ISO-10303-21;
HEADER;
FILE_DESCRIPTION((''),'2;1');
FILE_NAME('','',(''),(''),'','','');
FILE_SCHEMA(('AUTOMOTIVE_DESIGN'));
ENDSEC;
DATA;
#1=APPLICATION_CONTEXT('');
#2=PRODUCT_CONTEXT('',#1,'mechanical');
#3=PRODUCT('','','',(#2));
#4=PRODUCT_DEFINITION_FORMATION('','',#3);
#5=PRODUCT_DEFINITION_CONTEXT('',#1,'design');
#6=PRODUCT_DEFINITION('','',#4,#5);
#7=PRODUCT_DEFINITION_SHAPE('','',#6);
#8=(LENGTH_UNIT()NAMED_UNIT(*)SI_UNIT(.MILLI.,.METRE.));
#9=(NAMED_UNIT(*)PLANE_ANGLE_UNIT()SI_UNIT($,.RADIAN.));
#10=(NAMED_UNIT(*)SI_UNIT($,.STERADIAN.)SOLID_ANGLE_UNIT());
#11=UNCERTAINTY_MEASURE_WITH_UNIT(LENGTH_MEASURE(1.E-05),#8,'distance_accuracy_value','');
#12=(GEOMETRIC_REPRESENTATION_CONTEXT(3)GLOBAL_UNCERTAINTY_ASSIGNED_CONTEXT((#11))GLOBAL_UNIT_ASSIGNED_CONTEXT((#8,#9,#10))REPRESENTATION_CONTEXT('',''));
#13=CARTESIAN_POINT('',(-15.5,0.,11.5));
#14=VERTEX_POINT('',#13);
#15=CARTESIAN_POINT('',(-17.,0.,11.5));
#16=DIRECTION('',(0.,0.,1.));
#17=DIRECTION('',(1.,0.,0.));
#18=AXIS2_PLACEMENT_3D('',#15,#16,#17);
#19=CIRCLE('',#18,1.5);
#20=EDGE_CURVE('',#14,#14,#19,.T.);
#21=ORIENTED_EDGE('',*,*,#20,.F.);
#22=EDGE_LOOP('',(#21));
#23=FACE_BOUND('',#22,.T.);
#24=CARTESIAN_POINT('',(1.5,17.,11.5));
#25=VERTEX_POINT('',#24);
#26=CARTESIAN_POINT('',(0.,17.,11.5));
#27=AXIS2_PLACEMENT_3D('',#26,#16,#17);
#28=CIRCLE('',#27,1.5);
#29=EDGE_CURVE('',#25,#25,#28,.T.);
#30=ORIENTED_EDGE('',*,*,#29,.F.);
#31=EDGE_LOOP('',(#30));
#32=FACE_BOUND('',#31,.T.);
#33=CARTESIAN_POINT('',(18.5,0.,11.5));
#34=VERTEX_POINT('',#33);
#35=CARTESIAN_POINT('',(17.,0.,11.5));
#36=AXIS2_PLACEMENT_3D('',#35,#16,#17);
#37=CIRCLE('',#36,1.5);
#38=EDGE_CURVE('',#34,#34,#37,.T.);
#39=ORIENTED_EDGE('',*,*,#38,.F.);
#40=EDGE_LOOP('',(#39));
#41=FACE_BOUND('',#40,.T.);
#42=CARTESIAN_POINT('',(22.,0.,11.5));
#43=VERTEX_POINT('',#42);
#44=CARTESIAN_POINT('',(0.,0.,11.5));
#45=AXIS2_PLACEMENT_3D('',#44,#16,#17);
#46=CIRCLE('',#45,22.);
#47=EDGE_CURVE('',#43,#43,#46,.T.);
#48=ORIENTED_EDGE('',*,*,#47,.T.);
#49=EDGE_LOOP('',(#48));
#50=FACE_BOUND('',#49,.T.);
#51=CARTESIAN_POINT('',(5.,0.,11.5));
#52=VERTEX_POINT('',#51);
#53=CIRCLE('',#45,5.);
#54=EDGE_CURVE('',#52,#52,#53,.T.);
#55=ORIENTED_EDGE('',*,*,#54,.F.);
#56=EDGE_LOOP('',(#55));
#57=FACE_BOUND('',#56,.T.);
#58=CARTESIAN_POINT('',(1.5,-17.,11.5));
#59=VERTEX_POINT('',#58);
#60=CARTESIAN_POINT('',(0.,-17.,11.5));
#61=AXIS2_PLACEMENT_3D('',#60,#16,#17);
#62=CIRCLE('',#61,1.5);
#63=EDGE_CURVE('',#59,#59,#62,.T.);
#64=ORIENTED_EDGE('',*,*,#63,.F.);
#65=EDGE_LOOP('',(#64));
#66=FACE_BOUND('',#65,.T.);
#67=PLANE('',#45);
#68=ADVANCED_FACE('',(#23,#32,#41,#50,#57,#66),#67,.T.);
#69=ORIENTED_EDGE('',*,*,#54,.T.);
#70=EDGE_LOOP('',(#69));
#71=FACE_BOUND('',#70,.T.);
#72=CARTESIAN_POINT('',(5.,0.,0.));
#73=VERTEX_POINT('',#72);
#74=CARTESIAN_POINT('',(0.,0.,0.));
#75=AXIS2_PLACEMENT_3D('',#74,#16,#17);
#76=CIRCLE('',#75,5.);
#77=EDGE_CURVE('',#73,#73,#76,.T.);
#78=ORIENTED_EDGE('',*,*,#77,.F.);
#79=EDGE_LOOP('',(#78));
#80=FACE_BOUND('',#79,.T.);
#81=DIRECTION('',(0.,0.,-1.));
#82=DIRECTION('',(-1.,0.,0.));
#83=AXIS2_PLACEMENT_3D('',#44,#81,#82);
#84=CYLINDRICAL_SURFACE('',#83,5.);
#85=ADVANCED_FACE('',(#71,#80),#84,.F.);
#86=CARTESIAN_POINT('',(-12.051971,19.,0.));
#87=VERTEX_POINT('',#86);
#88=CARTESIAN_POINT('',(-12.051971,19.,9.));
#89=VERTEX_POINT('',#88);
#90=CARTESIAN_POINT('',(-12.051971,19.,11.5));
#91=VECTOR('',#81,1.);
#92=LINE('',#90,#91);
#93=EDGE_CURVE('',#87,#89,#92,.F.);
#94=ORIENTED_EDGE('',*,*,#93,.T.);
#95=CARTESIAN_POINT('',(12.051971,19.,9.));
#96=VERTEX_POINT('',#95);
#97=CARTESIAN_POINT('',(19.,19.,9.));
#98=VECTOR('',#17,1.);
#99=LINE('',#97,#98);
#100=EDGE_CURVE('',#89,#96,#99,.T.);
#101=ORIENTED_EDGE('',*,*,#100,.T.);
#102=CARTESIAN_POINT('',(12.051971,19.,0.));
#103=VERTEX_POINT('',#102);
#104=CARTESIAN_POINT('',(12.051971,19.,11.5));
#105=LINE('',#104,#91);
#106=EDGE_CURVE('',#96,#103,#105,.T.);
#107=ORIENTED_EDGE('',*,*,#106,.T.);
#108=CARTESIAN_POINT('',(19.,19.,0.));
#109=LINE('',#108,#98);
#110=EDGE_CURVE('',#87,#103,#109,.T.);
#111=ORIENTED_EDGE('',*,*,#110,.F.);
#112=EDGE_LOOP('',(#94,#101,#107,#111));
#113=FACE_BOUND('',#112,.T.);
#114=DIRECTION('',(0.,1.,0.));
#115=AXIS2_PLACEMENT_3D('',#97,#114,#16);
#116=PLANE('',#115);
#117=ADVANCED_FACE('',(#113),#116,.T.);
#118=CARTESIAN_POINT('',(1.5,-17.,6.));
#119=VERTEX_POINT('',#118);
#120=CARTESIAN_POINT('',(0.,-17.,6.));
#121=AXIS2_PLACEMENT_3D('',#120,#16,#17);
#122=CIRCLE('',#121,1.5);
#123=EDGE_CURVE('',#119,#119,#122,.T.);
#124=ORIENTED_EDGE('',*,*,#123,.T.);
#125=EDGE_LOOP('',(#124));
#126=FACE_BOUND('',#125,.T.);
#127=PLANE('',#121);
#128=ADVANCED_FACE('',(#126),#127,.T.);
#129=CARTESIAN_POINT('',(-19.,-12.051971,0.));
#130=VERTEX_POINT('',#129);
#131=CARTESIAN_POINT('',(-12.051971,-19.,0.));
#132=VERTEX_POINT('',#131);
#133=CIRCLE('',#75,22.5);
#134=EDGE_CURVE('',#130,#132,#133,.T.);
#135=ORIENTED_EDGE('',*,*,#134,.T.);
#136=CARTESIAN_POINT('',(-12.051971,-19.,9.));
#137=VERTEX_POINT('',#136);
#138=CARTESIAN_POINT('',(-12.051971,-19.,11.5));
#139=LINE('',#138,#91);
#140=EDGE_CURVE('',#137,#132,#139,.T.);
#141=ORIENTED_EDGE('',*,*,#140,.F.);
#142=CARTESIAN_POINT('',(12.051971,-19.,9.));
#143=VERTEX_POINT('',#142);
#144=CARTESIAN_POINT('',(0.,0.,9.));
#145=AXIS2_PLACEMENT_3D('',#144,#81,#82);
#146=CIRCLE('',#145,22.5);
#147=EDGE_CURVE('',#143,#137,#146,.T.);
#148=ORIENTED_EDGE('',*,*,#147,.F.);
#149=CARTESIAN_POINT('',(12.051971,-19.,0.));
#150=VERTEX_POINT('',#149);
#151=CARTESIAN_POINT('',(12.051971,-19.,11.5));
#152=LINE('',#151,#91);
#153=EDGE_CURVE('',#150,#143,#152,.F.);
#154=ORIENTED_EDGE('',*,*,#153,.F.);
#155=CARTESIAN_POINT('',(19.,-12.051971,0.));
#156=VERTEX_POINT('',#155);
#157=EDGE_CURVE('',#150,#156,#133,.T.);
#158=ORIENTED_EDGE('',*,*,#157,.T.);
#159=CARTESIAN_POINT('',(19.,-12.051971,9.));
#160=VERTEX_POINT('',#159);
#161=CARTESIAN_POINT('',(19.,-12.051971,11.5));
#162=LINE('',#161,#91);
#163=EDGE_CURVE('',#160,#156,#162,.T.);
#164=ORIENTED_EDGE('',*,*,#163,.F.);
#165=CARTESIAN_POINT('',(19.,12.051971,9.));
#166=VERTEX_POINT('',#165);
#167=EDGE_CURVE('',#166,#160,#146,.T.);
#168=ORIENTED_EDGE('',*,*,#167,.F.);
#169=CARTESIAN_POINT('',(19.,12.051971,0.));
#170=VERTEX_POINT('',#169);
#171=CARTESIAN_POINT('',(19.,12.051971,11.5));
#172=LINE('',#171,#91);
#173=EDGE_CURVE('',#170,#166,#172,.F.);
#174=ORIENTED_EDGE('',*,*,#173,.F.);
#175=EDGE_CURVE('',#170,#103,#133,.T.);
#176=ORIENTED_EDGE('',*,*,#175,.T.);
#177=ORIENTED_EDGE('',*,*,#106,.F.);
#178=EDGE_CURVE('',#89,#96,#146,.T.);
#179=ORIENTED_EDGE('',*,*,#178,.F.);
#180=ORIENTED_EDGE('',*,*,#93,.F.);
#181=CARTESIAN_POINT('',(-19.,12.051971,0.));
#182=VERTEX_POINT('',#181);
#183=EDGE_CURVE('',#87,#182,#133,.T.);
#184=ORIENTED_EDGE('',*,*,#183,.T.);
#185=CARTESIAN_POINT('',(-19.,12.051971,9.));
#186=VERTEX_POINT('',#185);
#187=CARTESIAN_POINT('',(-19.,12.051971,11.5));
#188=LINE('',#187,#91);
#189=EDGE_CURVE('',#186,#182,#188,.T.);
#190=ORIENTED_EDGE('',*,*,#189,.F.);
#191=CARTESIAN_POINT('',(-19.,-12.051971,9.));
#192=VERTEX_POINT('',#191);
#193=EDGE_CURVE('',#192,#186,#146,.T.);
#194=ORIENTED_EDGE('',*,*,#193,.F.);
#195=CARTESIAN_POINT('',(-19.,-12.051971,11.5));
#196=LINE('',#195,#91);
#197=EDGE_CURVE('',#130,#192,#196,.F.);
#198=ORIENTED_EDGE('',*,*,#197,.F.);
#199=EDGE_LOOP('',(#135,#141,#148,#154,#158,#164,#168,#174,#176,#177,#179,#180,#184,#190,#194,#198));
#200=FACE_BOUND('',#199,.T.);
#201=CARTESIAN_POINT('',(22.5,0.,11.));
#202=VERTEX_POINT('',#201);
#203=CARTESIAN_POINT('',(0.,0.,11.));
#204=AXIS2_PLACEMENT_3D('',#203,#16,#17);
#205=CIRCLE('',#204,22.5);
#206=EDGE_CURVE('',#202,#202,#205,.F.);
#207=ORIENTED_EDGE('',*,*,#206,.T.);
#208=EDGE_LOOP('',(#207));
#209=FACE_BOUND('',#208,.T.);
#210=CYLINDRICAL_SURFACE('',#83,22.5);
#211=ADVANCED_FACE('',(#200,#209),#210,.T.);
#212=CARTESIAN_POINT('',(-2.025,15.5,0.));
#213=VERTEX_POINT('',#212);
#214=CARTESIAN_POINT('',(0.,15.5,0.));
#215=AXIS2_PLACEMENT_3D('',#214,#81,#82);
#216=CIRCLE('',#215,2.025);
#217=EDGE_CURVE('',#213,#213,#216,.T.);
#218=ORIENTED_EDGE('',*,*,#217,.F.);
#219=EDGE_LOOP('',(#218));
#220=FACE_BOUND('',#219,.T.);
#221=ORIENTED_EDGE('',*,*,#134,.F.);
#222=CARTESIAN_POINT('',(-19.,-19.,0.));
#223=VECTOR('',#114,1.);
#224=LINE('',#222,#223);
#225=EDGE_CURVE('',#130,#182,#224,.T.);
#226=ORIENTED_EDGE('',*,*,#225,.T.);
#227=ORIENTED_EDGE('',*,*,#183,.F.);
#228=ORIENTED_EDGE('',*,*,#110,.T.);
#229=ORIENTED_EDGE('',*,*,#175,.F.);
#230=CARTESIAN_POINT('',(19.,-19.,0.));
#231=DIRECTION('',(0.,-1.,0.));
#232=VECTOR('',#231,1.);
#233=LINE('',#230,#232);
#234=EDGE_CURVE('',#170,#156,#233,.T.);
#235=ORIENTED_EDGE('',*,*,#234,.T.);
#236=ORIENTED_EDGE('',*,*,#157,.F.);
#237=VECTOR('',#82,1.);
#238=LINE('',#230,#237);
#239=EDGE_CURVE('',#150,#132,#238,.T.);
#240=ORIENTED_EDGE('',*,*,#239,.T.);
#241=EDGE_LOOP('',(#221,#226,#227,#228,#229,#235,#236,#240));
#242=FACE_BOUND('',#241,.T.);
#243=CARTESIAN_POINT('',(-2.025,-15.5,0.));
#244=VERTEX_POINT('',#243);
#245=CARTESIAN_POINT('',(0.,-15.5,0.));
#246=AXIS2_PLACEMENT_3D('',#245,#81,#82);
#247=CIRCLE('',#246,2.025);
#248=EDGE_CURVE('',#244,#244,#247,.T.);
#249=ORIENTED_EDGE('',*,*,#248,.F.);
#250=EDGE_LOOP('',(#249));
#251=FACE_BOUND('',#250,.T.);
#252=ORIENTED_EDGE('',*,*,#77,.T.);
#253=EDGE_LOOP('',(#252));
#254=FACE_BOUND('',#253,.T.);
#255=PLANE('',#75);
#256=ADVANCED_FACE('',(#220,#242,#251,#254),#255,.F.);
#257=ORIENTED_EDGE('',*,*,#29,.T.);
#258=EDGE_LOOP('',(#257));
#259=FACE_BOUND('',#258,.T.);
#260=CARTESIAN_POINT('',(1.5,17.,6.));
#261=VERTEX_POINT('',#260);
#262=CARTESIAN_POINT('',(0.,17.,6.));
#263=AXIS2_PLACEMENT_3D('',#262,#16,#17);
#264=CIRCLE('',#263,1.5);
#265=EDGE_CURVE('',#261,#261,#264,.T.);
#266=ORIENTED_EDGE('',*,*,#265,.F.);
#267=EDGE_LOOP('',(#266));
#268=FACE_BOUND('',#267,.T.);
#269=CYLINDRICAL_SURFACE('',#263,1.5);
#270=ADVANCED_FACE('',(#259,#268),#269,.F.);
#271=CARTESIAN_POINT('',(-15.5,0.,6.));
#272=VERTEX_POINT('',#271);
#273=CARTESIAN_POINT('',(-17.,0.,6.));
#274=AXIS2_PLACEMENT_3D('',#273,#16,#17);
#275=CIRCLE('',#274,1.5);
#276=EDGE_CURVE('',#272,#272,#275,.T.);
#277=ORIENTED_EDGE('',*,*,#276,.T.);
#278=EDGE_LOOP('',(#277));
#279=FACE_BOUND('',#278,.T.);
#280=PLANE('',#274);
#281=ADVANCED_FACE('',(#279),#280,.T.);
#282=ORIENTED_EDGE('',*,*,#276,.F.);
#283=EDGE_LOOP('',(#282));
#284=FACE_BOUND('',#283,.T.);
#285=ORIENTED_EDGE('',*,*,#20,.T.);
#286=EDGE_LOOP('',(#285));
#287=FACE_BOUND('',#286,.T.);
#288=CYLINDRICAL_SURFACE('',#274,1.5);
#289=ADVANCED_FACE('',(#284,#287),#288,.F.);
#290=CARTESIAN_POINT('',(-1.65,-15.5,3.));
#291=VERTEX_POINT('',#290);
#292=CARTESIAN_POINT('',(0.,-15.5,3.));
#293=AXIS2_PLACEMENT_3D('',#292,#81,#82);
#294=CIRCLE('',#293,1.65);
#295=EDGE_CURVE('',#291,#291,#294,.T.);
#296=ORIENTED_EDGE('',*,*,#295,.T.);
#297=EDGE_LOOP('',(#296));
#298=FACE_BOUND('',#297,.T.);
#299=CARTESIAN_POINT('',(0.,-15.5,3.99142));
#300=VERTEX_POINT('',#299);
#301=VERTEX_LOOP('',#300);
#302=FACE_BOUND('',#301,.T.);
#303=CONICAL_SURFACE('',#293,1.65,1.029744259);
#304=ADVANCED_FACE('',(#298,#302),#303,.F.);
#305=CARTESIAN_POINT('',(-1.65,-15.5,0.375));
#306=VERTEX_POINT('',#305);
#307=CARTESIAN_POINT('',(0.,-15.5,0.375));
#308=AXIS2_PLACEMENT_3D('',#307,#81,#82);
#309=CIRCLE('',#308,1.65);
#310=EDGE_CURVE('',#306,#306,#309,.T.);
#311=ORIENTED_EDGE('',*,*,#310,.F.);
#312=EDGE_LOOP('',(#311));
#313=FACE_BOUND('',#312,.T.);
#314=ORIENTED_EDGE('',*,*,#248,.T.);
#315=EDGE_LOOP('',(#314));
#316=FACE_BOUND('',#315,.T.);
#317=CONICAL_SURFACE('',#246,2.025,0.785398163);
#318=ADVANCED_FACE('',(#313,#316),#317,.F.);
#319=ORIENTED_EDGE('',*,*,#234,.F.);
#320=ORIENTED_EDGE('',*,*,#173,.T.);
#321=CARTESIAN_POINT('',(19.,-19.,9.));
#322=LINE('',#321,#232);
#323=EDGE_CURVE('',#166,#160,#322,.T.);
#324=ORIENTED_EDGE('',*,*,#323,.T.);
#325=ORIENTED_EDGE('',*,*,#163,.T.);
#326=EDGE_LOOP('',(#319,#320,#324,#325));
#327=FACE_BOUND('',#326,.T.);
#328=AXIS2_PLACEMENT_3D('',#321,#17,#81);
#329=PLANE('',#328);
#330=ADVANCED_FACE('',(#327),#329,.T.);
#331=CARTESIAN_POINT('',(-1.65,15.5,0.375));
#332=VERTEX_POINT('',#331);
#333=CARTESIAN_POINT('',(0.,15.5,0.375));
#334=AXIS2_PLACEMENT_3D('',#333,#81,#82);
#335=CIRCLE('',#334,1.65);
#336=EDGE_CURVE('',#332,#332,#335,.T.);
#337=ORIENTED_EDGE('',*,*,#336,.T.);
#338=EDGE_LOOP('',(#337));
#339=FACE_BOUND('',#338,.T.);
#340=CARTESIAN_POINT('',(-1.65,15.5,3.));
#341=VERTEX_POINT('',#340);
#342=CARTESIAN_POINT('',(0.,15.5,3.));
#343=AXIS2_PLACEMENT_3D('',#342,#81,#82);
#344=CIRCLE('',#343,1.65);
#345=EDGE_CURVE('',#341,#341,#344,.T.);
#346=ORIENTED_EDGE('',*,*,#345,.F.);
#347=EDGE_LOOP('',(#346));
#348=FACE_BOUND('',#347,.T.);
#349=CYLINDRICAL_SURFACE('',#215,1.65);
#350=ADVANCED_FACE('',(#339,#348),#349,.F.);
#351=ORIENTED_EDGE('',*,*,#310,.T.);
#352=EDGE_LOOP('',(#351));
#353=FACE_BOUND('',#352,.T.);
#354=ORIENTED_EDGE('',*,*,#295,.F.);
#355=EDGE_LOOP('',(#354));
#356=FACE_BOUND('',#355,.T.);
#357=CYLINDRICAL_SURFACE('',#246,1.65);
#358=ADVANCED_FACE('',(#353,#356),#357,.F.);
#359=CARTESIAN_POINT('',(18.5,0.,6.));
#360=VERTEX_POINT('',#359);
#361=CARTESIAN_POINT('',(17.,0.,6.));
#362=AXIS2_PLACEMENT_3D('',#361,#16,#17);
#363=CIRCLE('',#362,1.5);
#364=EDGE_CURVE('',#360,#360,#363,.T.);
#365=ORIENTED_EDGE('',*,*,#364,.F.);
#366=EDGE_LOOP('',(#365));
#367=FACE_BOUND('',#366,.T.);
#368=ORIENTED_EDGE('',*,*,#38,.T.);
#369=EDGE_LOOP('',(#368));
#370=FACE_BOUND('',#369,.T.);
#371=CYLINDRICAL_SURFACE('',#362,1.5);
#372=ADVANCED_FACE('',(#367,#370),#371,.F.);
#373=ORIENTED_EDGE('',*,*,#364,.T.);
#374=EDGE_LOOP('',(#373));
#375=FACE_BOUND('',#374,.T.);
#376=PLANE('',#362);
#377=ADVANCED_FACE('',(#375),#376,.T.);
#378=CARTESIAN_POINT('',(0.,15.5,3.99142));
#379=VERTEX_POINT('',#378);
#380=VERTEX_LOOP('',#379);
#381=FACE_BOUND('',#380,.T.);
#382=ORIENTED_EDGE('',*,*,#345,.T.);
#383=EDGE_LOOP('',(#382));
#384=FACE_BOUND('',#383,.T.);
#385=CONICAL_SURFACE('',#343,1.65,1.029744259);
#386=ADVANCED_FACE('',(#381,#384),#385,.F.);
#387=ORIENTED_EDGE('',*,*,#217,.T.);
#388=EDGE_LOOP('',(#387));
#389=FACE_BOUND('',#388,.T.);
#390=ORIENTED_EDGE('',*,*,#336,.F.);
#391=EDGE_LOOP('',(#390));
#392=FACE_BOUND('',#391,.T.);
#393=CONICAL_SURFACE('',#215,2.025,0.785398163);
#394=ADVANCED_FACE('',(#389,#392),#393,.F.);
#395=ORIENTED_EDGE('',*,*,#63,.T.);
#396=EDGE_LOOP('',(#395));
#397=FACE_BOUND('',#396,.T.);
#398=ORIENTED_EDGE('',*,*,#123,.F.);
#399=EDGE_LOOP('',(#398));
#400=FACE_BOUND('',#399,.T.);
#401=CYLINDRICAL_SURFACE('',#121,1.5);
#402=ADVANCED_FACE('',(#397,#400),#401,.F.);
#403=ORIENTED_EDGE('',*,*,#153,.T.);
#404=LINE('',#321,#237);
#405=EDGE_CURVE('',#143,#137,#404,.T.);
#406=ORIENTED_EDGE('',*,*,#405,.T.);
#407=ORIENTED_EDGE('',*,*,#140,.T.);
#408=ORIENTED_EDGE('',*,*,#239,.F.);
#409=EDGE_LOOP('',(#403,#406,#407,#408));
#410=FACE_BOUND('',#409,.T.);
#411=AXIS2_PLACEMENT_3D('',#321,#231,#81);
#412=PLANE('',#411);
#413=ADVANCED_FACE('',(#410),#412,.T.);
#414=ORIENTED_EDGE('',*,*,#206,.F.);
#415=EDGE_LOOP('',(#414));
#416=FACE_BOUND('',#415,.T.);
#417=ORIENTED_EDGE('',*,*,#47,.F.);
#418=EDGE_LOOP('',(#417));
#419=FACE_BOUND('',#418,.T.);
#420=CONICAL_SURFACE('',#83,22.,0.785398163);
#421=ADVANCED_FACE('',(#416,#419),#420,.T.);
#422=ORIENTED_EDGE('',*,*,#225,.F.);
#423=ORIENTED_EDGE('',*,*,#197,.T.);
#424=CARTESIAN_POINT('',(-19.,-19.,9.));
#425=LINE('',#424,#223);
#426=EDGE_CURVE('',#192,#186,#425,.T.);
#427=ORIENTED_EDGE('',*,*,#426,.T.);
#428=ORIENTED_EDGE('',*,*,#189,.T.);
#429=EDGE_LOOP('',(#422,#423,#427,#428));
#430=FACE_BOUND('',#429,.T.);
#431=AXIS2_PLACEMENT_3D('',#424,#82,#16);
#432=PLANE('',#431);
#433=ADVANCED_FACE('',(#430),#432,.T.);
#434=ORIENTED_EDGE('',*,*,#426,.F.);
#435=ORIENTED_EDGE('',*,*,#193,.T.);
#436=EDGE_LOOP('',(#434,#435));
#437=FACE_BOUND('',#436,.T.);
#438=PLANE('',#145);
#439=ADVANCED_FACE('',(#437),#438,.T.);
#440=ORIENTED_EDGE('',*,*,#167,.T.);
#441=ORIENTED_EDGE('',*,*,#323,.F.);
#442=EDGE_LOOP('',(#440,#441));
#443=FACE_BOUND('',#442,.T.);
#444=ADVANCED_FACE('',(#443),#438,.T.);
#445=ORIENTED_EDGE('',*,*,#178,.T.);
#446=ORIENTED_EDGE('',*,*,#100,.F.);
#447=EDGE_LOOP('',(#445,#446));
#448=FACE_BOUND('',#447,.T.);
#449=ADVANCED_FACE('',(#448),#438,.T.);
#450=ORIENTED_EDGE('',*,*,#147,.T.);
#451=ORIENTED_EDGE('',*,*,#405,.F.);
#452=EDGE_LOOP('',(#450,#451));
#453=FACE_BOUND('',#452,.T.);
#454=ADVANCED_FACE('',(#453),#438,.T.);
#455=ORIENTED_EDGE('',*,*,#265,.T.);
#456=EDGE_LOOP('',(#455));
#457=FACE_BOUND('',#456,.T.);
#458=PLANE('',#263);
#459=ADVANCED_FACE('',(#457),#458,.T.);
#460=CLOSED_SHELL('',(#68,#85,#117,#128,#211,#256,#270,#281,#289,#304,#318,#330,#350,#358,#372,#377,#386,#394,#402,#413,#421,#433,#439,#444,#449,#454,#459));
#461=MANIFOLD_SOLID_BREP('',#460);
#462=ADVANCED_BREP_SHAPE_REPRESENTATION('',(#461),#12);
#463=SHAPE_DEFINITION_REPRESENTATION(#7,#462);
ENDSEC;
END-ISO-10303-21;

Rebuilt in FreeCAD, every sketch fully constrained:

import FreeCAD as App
import Part
import Sketcher

V = App.Vector


def edges_at(feature, points):
    """Names of the edges that pass closest to the given points."""
    edges = feature.Shape.Edges
    near = lambda p: min(range(len(edges)), key=lambda i: edges[i].distToShape(Part.Vertex(*p))[0])
    return sorted({f"Edge{near(p) + 1}" for p in points})

doc = App.newDocument("Part")
body = doc.addObject("PartDesign::Body", "Body")

# Sketch on XY plane
sketch1 = doc.addObject("Sketcher::SketchObject", "Sketch")
body.addObject(sketch1)
sketch1.AttachmentSupport = (doc.XY_Plane, [""])
sketch1.MapMode = "FlatFace"
sketch1.addGeometry([
    Part.Circle(V(0, 0, 0), V(0, 0, 1), 22),
    Part.Circle(V(0, 0, 0), V(0, 0, 1), 5),
], False)
sketch1.addConstraint([
    Sketcher.Constraint("Coincident", 0, 3, -1, 1),
    Sketcher.Constraint("Coincident", 1, 3, -1, 1),
    Sketcher.Constraint("Diameter", 0, 45.0),
    Sketcher.Constraint("Diameter", 1, 10.0),
])
pad1 = doc.addObject("PartDesign::Pad", "Pad")
body.addObject(pad1)
pad1.Profile = sketch1
pad1.Length = 11.5

# Sketch on XY plane
sketch2 = doc.addObject("Sketcher::SketchObject", "Sketch001")
body.addObject(sketch2)
sketch2.AttachmentSupport = (doc.XY_Plane, [""])
sketch2.MapMode = "FlatFace"
sketch2.AttachmentOffset = App.Placement(V(0, 0, 11.5), App.Rotation())
sketch2.addGeometry([
    Part.Circle(V(0, 17, 0), V(0, 0, 1), 1.5),
    Part.Circle(V(17, 0, 0), V(0, 0, 1), 1.5),
    Part.Circle(V(0, -17, 0), V(0, 0, 1), 1.5),
    Part.Circle(V(-17, 0, 0), V(0, 0, 1), 1.5),
], False)
sketch2.addConstraint([
    Sketcher.Constraint("Equal", 0, 1),
    Sketcher.Constraint("Equal", 1, 2),
    Sketcher.Constraint("Equal", 2, 3),
    Sketcher.Constraint("Symmetric", 0, 3, 2, 3, -1, 1),
    Sketcher.Constraint("Symmetric", 1, 3, 3, 3, -1, 1),
    Sketcher.Constraint("PointOnObject", 0, 3, -2),
    Sketcher.Constraint("PointOnObject", 1, 3, -1),
    Sketcher.Constraint("Diameter", 0, 3.0),
    Sketcher.Constraint("DistanceY", -1, 1, 0, 3, 17.0),
    Sketcher.Constraint("DistanceX", -1, 1, 1, 3, 17.0),
])
pocket1 = doc.addObject("PartDesign::Pocket", "Pocket")
body.addObject(pocket1)
pocket1.Profile = sketch2
pocket1.Length = 5.5
doc.recompute()

chamfer = doc.addObject("PartDesign::Chamfer", "Chamfer")
body.addObject(chamfer)
chamfer.Base = (pocket1, edges_at(pocket1, [(-22.5, 0, 11.5)]))
chamfer.Size = 0.5

# Sketch on XY plane
sketch3 = doc.addObject("Sketcher::SketchObject", "Sketch002")
body.addObject(sketch3)
sketch3.AttachmentSupport = (doc.XY_Plane, [""])
sketch3.MapMode = "FlatFace"
sketch3.addGeometry([
    Part.LineSegment(V(30, 30, 0), V(30, -30, 0)),  # 0
    Part.LineSegment(V(30, -30, 0), V(-30, -30, 0)),  # 1
    Part.LineSegment(V(-30, -30, 0), V(-30, 30, 0)),  # 2
    Part.LineSegment(V(-30, 30, 0), V(30, 30, 0)),  # 3
    Part.LineSegment(V(-19, -19, 0), V(19, -19, 0)),  # 4
    Part.LineSegment(V(19, -19, 0), V(19, 19, 0)),  # 5
    Part.LineSegment(V(19, 19, 0), V(-19, 19, 0)),  # 6
    Part.LineSegment(V(-19, 19, 0), V(-19, -19, 0)),  # 7
], False)
sketch3.addConstraint([
    Sketcher.Constraint("Coincident", 0, 2, 1, 1),
    Sketcher.Constraint("Coincident", 1, 2, 2, 1),
    Sketcher.Constraint("Coincident", 2, 2, 3, 1),
    Sketcher.Constraint("Coincident", 3, 2, 0, 1),
    Sketcher.Constraint("Coincident", 4, 2, 5, 1),
    Sketcher.Constraint("Coincident", 5, 2, 6, 1),
    Sketcher.Constraint("Coincident", 6, 2, 7, 1),
    Sketcher.Constraint("Coincident", 7, 2, 4, 1),
    Sketcher.Constraint("Vertical", 0),
    Sketcher.Constraint("Horizontal", 1),
    Sketcher.Constraint("Vertical", 2),
    Sketcher.Constraint("Horizontal", 3),
    Sketcher.Constraint("Horizontal", 4),
    Sketcher.Constraint("Vertical", 5),
    Sketcher.Constraint("Horizontal", 6),
    Sketcher.Constraint("Vertical", 7),
    Sketcher.Constraint("Symmetric", 0, 2, 2, 2, -1, 1),
    Sketcher.Constraint("Symmetric", 4, 2, 6, 2, -1, 1),
    Sketcher.Constraint("Equal", 3, 0),
    Sketcher.Constraint("Equal", 6, 5),
    Sketcher.Constraint("DistanceX", 4, 1, 4, 2, 38.0),
    Sketcher.Constraint("DistanceX", 1, 2, 1, 1, 59.934),
])
pocket2 = doc.addObject("PartDesign::Pocket", "Pocket001")
body.addObject(pocket2)
pocket2.Profile = sketch3
pocket2.Length = 9
pocket2.Reversed = True

# Sketch on XY plane
sketch4 = doc.addObject("Sketcher::SketchObject", "Sketch003")
body.addObject(sketch4)
sketch4.AttachmentSupport = (doc.XY_Plane, [""])
sketch4.MapMode = "FlatFace"
sketch4.addGeometry([
    Part.Circle(V(0, -15.5, 0), V(0, 0, 1), 1.6),
    Part.Circle(V(0, 15.5, 0), V(0, 0, 1), 1.6),
], False)
sketch4.addConstraint([
    Sketcher.Constraint("Equal", 0, 1),
    Sketcher.Constraint("Symmetric", 0, 3, 1, 3, -1, 1),
    Sketcher.Constraint("PointOnObject", 0, 3, -2),
    Sketcher.Constraint("Diameter", 0, 3.3),
    Sketcher.Constraint("DistanceY", 0, 3, 1, 3, 31.0),
])
doc.recompute()
hole = doc.addObject("PartDesign::Hole", "Hole")
body.addObject(hole)
hole.Profile = sketch4
hole.ThreadType = "None"
hole.Diameter = 3.3
hole.DepthType = "Dimension"
hole.Depth = 3
hole.DrillPoint = "Angled"
hole.DrillPointAngle = 118
hole.HoleCutType = "Countersink"
hole.HoleCutDiameter = 4.05
hole.HoleCutCountersinkAngle = 90
hole.Reversed = True

doc.recompute()
